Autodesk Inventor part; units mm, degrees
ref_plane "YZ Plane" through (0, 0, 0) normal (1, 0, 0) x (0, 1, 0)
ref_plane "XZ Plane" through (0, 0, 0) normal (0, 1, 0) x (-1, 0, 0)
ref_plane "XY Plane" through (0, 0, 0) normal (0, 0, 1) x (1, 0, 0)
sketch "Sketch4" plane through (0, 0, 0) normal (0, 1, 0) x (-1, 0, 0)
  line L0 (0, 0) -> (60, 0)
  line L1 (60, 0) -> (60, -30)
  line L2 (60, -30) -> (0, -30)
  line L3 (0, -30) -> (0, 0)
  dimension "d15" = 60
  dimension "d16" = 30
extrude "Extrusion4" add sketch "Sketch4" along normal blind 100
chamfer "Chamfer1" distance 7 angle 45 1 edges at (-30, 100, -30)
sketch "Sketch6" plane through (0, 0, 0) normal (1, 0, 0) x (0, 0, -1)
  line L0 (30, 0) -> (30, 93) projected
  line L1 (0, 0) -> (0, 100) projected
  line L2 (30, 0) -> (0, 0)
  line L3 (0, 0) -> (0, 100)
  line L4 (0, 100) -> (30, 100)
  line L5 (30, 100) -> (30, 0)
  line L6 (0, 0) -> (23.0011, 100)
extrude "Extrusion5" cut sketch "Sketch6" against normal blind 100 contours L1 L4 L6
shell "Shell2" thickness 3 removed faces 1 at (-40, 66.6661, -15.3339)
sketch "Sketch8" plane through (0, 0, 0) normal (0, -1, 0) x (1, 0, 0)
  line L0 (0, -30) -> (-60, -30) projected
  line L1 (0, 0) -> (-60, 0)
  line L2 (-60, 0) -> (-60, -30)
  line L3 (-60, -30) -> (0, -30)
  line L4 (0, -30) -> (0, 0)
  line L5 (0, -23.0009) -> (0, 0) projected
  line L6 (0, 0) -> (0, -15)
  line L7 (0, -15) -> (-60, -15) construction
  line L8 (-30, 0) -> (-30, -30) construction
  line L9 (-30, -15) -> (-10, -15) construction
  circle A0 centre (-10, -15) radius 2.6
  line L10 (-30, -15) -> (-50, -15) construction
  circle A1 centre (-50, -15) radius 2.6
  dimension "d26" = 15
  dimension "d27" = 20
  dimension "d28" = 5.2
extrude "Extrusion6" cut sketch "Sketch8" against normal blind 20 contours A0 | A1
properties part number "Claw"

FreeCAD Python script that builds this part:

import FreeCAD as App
import Part
import Sketcher
from FreeCAD import Vector
Q = App.Units.Quantity


def edges_at(feature, points):
    """Names of the edges that pass closest to the given points."""
    edges = feature.Shape.Edges
    near = lambda p: min(range(len(edges)), key=lambda i: edges[i].distToShape(Part.Vertex(*p))[0])
    return sorted({f"Edge{near(p) + 1}" for p in points})


def faces_at(feature, points):
    """Names of the faces that lie closest to the given points."""
    faces = feature.Shape.Faces
    near = lambda p: min(range(len(faces)), key=lambda i: faces[i].distToShape(Part.Vertex(*p))[0])
    return sorted({f"Face{near(p) + 1}" for p in points})

doc = App.newDocument("Part")
body = doc.addObject("PartDesign::Body", "Body")

# Sketch on XZ plane
sketch1 = body.newObject("Sketcher::SketchObject", "Sketch")
sketch1.AttachmentSupport = (doc.getObject("XZ_Plane"), [""])
sketch1.MapMode = "FlatFace"
sketch1.addGeometry(Part.LineSegment(Vector(-60, 0, 0), Vector(0, 0, 0)), False)
sketch1.addGeometry(Part.LineSegment(Vector(0, 0, 0), Vector(0, -30, 0)), False)
sketch1.addGeometry(Part.LineSegment(Vector(0, -30, 0), Vector(-60, -30, 0)), False)
sketch1.addGeometry(Part.LineSegment(Vector(-60, -30, 0), Vector(-60, 0, 0)), False)
sketch1.addConstraint(Sketcher.Constraint("Coincident", 0, 2, 1, 1))
sketch1.addConstraint(Sketcher.Constraint("Coincident", 1, 2, 2, 1))
sketch1.addConstraint(Sketcher.Constraint("Coincident", 2, 2, 3, 1))
sketch1.addConstraint(Sketcher.Constraint("Coincident", 3, 2, 0, 1))
sketch1.addConstraint(Sketcher.Constraint("Horizontal", 0))
sketch1.addConstraint(Sketcher.Constraint("Vertical", 1))
sketch1.addConstraint(Sketcher.Constraint("Horizontal", 2))
sketch1.addConstraint(Sketcher.Constraint("Vertical", 3))
sketch1.addConstraint(Sketcher.Constraint("Coincident", 0, 2, -1, 1))
sketch1.addConstraint(Sketcher.Constraint("DistanceX", 0, 1, 0, 2, Q("60 mm")))
sketch1.addConstraint(Sketcher.Constraint("DistanceY", 1, 2, 1, 1, Q("30 mm")))
pad1 = body.newObject("PartDesign::Pad", "Pad")
pad1.Profile = sketch1
pad1.Length = 100
pad1.Reversed = True
doc.recompute()

chamfer = body.newObject("PartDesign::Chamfer", "Chamfer")
chamfer.Base = (pad1, edges_at(pad1, [(-30, 100, -30)]))
chamfer.Size = 7

# Sketch on YZ plane
sketch2 = body.newObject("Sketcher::SketchObject", "Sketch001")
sketch2.AttachmentSupport = (doc.getObject("YZ_Plane"), [""])
sketch2.MapMode = "FlatFace"
sketch2.addGeometry(Part.LineSegment(Vector(100, 0, 0), Vector(0, 0, 0)), False)
sketch2.addGeometry(Part.LineSegment(Vector(0, 0, 0), Vector(100, -23, 0)), False)
sketch2.addGeometry(Part.LineSegment(Vector(100, -23, 0), Vector(100, 0, 0)), False)
sketch2.addConstraint(Sketcher.Constraint("Coincident", 0, 2, 1, 1))
sketch2.addConstraint(Sketcher.Constraint("Coincident", 1, 2, 2, 1))
sketch2.addConstraint(Sketcher.Constraint("Coincident", 2, 2, 0, 1))
sketch2.addConstraint(Sketcher.Constraint("Horizontal", 0))
sketch2.addConstraint(Sketcher.Constraint("Vertical", 2))
sketch2.addConstraint(Sketcher.Constraint("Coincident", 0, 2, -1, 1))
sketch2.addConstraint(Sketcher.Constraint("DistanceX", 0, 2, 0, 1, Q("100 mm")))
sketch2.addConstraint(Sketcher.Constraint("DistanceY", 2, 1, 2, 2, Q("23.001 mm")))
pocket1 = body.newObject("PartDesign::Pocket", "Pocket")
pocket1.Profile = sketch2
pocket1.Length = 100
doc.recompute()

thickness = body.newObject("PartDesign::Thickness", "Thickness")
thickness.Base = (pocket1, faces_at(pocket1, [(-40, 66.666, -15.334)]))
thickness.Value = 3
thickness.Reversed = True
thickness.Join = "Intersection"

# Sketch on XZ plane
sketch3 = body.newObject("Sketcher::SketchObject", "Sketch002")
sketch3.AttachmentSupport = (doc.getObject("XZ_Plane"), [""])
sketch3.MapMode = "FlatFace"
sketch3.addGeometry(Part.Circle(Vector(-10, -15, 0), Vector(0, 0, 1), 2.6), False)
sketch3.addGeometry(Part.Circle(Vector(-50, -15, 0), Vector(0, 0, 1), 2.6), False)
sketch3.addConstraint(Sketcher.Constraint("Equal", 0, 1))
sketch3.addConstraint(Sketcher.Constraint("Horizontal", 0, 3, 1, 3))
sketch3.addConstraint(Sketcher.Constraint("Diameter", 0, Q("5.2 mm")))
sketch3.addConstraint(Sketcher.Constraint("DistanceY", 0, 3, -1, 1, Q("15 mm")))
sketch3.addConstraint(Sketcher.Constraint("DistanceX", 0, 3, -1, 1, Q("10 mm")))
sketch3.addConstraint(Sketcher.Constraint("DistanceX", 1, 3, -1, 1, Q("50 mm")))
pocket2 = body.newObject("PartDesign::Pocket", "Pocket001")
pocket2.Profile = sketch3
pocket2.Length = 20

doc.recompute()
